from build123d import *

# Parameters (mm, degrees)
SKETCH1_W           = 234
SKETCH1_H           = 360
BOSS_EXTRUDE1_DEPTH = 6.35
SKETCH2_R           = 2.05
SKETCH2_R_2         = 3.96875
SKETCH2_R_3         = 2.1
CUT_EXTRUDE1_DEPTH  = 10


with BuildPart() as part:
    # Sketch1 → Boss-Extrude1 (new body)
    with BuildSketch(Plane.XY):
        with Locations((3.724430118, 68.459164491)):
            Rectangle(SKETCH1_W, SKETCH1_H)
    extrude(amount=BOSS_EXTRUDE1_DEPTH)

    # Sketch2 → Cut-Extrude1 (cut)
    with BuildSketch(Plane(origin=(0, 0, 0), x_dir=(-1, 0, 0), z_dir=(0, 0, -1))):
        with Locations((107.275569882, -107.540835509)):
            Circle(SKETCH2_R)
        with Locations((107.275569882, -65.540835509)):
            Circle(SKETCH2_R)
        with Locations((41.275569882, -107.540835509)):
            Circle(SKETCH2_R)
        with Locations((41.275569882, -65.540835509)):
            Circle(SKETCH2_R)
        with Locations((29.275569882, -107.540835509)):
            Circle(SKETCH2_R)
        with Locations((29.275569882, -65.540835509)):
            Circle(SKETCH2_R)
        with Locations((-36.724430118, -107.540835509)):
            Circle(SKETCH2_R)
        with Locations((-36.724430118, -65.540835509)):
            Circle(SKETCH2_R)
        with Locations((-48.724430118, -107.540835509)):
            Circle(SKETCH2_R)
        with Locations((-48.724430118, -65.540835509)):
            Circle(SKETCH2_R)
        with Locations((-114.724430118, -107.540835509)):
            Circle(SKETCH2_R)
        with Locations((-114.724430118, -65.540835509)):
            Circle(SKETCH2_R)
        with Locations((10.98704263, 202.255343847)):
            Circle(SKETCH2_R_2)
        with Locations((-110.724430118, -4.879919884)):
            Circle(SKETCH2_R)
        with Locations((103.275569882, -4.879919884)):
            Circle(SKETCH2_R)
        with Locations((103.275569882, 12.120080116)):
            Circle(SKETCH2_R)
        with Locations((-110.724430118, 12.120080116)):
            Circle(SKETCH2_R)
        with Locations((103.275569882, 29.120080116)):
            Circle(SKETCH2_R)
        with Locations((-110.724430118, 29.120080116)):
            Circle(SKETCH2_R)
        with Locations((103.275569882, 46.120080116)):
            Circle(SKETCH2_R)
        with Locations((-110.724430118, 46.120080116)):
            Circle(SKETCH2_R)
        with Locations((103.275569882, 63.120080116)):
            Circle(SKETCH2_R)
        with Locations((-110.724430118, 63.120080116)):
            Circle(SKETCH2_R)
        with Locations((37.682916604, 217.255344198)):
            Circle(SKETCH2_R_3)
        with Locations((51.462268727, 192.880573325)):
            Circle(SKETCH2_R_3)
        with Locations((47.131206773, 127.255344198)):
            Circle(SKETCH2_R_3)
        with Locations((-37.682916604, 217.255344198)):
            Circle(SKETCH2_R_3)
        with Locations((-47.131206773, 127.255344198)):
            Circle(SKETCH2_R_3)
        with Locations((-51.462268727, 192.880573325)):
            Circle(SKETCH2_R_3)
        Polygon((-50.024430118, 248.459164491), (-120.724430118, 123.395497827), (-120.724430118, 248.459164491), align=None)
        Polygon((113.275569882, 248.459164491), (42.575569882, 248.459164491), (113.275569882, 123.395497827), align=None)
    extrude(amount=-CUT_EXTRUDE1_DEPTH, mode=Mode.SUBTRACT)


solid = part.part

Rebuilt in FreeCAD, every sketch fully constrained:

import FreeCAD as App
import Part
import Sketcher

V = App.Vector
Q = App.Units.Quantity


def add_polygon(sketch, points):
    """Adds a closed chain of lines whose ends are joined by coincident constraints."""
    first, n = sketch.GeometryCount, len(points)
    for a, b in zip(points, points[1:] + points[:1]):
        sketch.addGeometry(Part.LineSegment(App.Vector(*a, 0), App.Vector(*b, 0)), False)
    for i in range(n):
        sketch.addConstraint(Sketcher.Constraint("Coincident", first + i, 2, first + (i + 1) % n, 1))

doc = App.newDocument("Part")
body = doc.addObject("PartDesign::Body", "Body")

sketch1 = body.newObject("Sketcher::SketchObject", "Sketch")
sketch1.AttachmentSupport = (doc.getObject("XY_Plane"), [""])
sketch1.MapMode = "FlatFace"
add_polygon(sketch1, [(-113.27557, 248.459164), (-113.27557, -111.540836), (120.72443, -111.540836), (120.72443, 248.459164)])
sketch1.addConstraint(Sketcher.Constraint("Vertical", 0))
sketch1.addConstraint(Sketcher.Constraint("Horizontal", 1))
sketch1.addConstraint(Sketcher.Constraint("Vertical", 2))
sketch1.addConstraint(Sketcher.Constraint("Horizontal", 3))
sketch1.addConstraint(Sketcher.Constraint("DistanceX", 1, 1, 1, 2, 234.0))
sketch1.addConstraint(Sketcher.Constraint("DistanceY", 0, 2, 0, 1, 360.0))
sketch1.addConstraint(Sketcher.Constraint("DistanceX", 0, 2, -1, 1, 113.27557))
sketch1.addConstraint(Sketcher.Constraint("DistanceY", 0, 2, -1, 1, 111.540836))
pad1 = body.newObject("PartDesign::Pad", "Pad")
pad1.Profile = sketch1
pad1.Length = 6.35

sketch2 = body.newObject("Sketcher::SketchObject", "Sketch001")
sketch2.AttachmentSupport = (doc.getObject("XY_Plane"), [""])
sketch2.MapMode = "FlatFace"
sketch2.addGeometry(Part.Circle(V(-107.27557, -107.540836, 0), V(0, 0, 1), 2.05), False)
sketch2.addGeometry(Part.Circle(V(-107.27557, -65.540836, 0), V(0, 0, 1), 2.05), False)
sketch2.addGeometry(Part.Circle(V(-41.27557, -107.540836, 0), V(0, 0, 1), 2.05), False)
sketch2.addGeometry(Part.Circle(V(-41.27557, -65.540836, 0), V(0, 0, 1), 2.05), False)
sketch2.addGeometry(Part.Circle(V(-29.27557, -107.540836, 0), V(0, 0, 1), 2.05), False)
sketch2.addGeometry(Part.Circle(V(-29.27557, -65.540836, 0), V(0, 0, 1), 2.05), False)
sketch2.addGeometry(Part.Circle(V(36.72443, -107.540836, 0), V(0, 0, 1), 2.05), False)
sketch2.addGeometry(Part.Circle(V(36.72443, -65.540836, 0), V(0, 0, 1), 2.05), False)
sketch2.addGeometry(Part.Circle(V(48.72443, -107.540836, 0), V(0, 0, 1), 2.05), False)
sketch2.addGeometry(Part.Circle(V(48.72443, -65.540836, 0), V(0, 0, 1), 2.05), False)
sketch2.addGeometry(Part.Circle(V(114.72443, -107.540836, 0), V(0, 0, 1), 2.05), False)
sketch2.addGeometry(Part.Circle(V(114.72443, -65.540836, 0), V(0, 0, 1), 2.05), False)
sketch2.addGeometry(Part.Circle(V(-10.987043, 202.255344, 0), V(0, 0, 1), 3.96875), False)
sketch2.addGeometry(Part.Circle(V(110.72443, -4.87992, 0), V(0, 0, 1), 2.05), False)
sketch2.addGeometry(Part.Circle(V(-103.27557, -4.87992, 0), V(0, 0, 1), 2.05), False)
sketch2.addGeometry(Part.Circle(V(-103.27557, 12.12008, 0), V(0, 0, 1), 2.05), False)
sketch2.addGeometry(Part.Circle(V(110.72443, 12.12008, 0), V(0, 0, 1), 2.05), False)
sketch2.addGeometry(Part.Circle(V(-103.27557, 29.12008, 0), V(0, 0, 1), 2.05), False)
sketch2.addGeometry(Part.Circle(V(110.72443, 29.12008, 0), V(0, 0, 1), 2.05), False)
sketch2.addGeometry(Part.Circle(V(-103.27557, 46.12008, 0), V(0, 0, 1), 2.05), False)
sketch2.addGeometry(Part.Circle(V(110.72443, 46.12008, 0), V(0, 0, 1), 2.05), False)
sketch2.addGeometry(Part.Circle(V(-103.27557, 63.12008, 0), V(0, 0, 1), 2.05), False)
sketch2.addGeometry(Part.Circle(V(110.72443, 63.12008, 0), V(0, 0, 1), 2.05), False)
sketch2.addGeometry(Part.Circle(V(-37.682917, 217.255344, 0), V(0, 0, 1), 2.1), False)
sketch2.addGeometry(Part.Circle(V(-51.462269, 192.880573, 0), V(0, 0, 1), 2.1), False)
sketch2.addGeometry(Part.Circle(V(-47.131207, 127.255344, 0), V(0, 0, 1), 2.1), False)
sketch2.addGeometry(Part.Circle(V(37.682917, 217.255344, 0), V(0, 0, 1), 2.1), False)
sketch2.addGeometry(Part.Circle(V(47.131207, 127.255344, 0), V(0, 0, 1), 2.1), False)
sketch2.addGeometry(Part.Circle(V(51.462269, 192.880573, 0), V(0, 0, 1), 2.1), False)
add_polygon(sketch2, [(120.72443, 123.395498), (50.02443, 248.459164), (120.72443, 248.459164)])
add_polygon(sketch2, [(-113.27557, 248.459164), (-42.57557, 248.459164), (-113.27557, 123.395498)])
sketch2.addConstraint(Sketcher.Constraint("Horizontal", 30))
sketch2.addConstraint(Sketcher.Constraint("Vertical", 31))
sketch2.addConstraint(Sketcher.Constraint("Horizontal", 32))
sketch2.addConstraint(Sketcher.Constraint("Vertical", 34))
sketch2.addConstraint(Sketcher.Constraint("Equal", 0, 1))
sketch2.addConstraint(Sketcher.Constraint("Equal", 1, 2))
sketch2.addConstraint(Sketcher.Constraint("Equal", 2, 3))
sketch2.addConstraint(Sketcher.Constraint("Equal", 3, 4))
sketch2.addConstraint(Sketcher.Constraint("Equal", 4, 5))
sketch2.addConstraint(Sketcher.Constraint("Equal", 5, 6))
sketch2.addConstraint(Sketcher.Constraint("Equal", 6, 7))
sketch2.addConstraint(Sketcher.Constraint("Equal", 7, 8))
sketch2.addConstraint(Sketcher.Constraint("Equal", 8, 9))
sketch2.addConstraint(Sketcher.Constraint("Equal", 9, 10))
sketch2.addConstraint(Sketcher.Constraint("Equal", 10, 11))
sketch2.addConstraint(Sketcher.Constraint("Equal", 11, 13))
sketch2.addConstraint(Sketcher.Constraint("Equal", 13, 14))
sketch2.addConstraint(Sketcher.Constraint("Equal", 14, 15))
sketch2.addConstraint(Sketcher.Constraint("Equal", 15, 16))
sketch2.addConstraint(Sketcher.Constraint("Equal", 16, 17))
sketch2.addConstraint(Sketcher.Constraint("Equal", 17, 18))
sketch2.addConstraint(Sketcher.Constraint("Equal", 18, 19))
sketch2.addConstraint(Sketcher.Constraint("Equal", 19, 20))
sketch2.addConstraint(Sketcher.Constraint("Equal", 20, 21))
sketch2.addConstraint(Sketcher.Constraint("Equal", 21, 22))
sketch2.addConstraint(Sketcher.Constraint("Equal", 23, 24))
sketch2.addConstraint(Sketcher.Constraint("Equal", 24, 25))
sketch2.addConstraint(Sketcher.Constraint("Equal", 25, 26))
sketch2.addConstraint(Sketcher.Constraint("Equal", 26, 27))
sketch2.addConstraint(Sketcher.Constraint("Equal", 27, 28))
sketch2.addConstraint(Sketcher.Constraint("Symmetric", 23, 3, 26, 3, -2))
sketch2.addConstraint(Sketcher.Constraint("Symmetric", 25, 3, 27, 3, -2))
sketch2.addConstraint(Sketcher.Constraint("Symmetric", 24, 3, 28, 3, -2))
sketch2.addConstraint(Sketcher.Constraint("Horizontal", 0, 3, 2, 3))
sketch2.addConstraint(Sketcher.Constraint("Horizontal", 1, 3, 3, 3))
sketch2.addConstraint(Sketcher.Constraint("Horizontal", 2, 3, 4, 3))
sketch2.addConstraint(Sketcher.Constraint("Horizontal", 3, 3, 5, 3))
sketch2.addConstraint(Sketcher.Constraint("Horizontal", 4, 3, 6, 3))
sketch2.addConstraint(Sketcher.Constraint("Horizontal", 5, 3, 7, 3))
sketch2.addConstraint(Sketcher.Constraint("Horizontal", 6, 3, 8, 3))
sketch2.addConstraint(Sketcher.Constraint("Horizontal", 7, 3, 9, 3))
sketch2.addConstraint(Sketcher.Constraint("Horizontal", 8, 3, 10, 3))
sketch2.addConstraint(Sketcher.Constraint("Horizontal", 9, 3, 11, 3))
sketch2.addConstraint(Sketcher.Constraint("Horizontal", 13, 3, 14, 3))
sketch2.addConstraint(Sketcher.Constraint("Horizontal", 15, 3, 16, 3))
sketch2.addConstraint(Sketcher.Constraint("Horizontal", 17, 3, 18, 3))
sketch2.addConstraint(Sketcher.Constraint("Horizontal", 19, 3, 20, 3))
sketch2.addConstraint(Sketcher.Constraint("Horizontal", 21, 3, 22, 3))
sketch2.addConstraint(Sketcher.Constraint("Horizontal", 30, 2, 32, 2))
sketch2.addConstraint(Sketcher.Constraint("Horizontal", 31, 2, 33, 2))
sketch2.addConstraint(Sketcher.Constraint("Vertical", 0, 3, 1, 3))
sketch2.addConstraint(Sketcher.Constraint("Vertical", 2, 3, 3, 3))
sketch2.addConstraint(Sketcher.Constraint("Vertical", 4, 3, 5, 3))
sketch2.addConstraint(Sketcher.Constraint("Vertical", 6, 3, 7, 3))
sketch2.addConstraint(Sketcher.Constraint("Vertical", 8, 3, 9, 3))
sketch2.addConstraint(Sketcher.Constraint("Vertical", 10, 3, 11, 3))
sketch2.addConstraint(Sketcher.Constraint("Vertical", 14, 3, 15, 3))
sketch2.addConstraint(Sketcher.Constraint("Vertical", 13, 3, 16, 3))
sketch2.addConstraint(Sketcher.Constraint("Vertical", 15, 3, 17, 3))
sketch2.addConstraint(Sketcher.Constraint("Vertical", 16, 3, 18, 3))
sketch2.addConstraint(Sketcher.Constraint("Vertical", 17, 3, 19, 3))
sketch2.addConstraint(Sketcher.Constraint("Vertical", 18, 3, 20, 3))
sketch2.addConstraint(Sketcher.Constraint("Vertical", 19, 3, 21, 3))
sketch2.addConstraint(Sketcher.Constraint("Vertical", 20, 3, 22, 3))
sketch2.addConstraint(Sketcher.Constraint("Equal", 30, 32))
sketch2.addConstraint(Sketcher.Constraint("Diameter", 0, 4.1))
sketch2.addConstraint(Sketcher.Constraint("Diameter", 23, 4.2))
sketch2.addConstraint(Sketcher.Constraint("DistanceX", 30, 1, 30, 2, 70.7))
sketch2.addConstraint(Sketcher.Constraint("DistanceY", 0, 3, 1, 3, 42.0))
sketch2.addConstraint(Sketcher.Constraint("DistanceX", 0, 3, 2, 3, 66.0))
sketch2.addConstraint(Sketcher.Constraint("DistanceX", 2, 3, 4, 3, 12.0))
sketch2.addConstraint(Sketcher.Constraint("DistanceX", 4, 3, 6, 3, 66.0))
sketch2.addConstraint(Sketcher.Constraint("DistanceX", 6, 3, 8, 3, 12.0))
sketch2.addConstraint(Sketcher.Constraint("DistanceX", 8, 3, 10, 3, 66.0))
sketch2.addConstraint(Sketcher.Constraint("DistanceX", 13, 3, 11, 3, 4.0))
sketch2.addConstraint(Sketcher.Constraint("DistanceX", 1, 3, 14, 3, 4.0))
sketch2.addConstraint(Sketcher.Constraint("DistanceY", 14, 3, 15, 3, 17.0))
sketch2.addConstraint(Sketcher.Constraint("DistanceY", 15, 3, 17, 3, 17.0))
sketch2.addConstraint(Sketcher.Constraint("DistanceY", 17, 3, 19, 3, 17.0))
sketch2.addConstraint(Sketcher.Constraint("DistanceY", 19, 3, 21, 3, 17.0))
sketch2.addConstraint(Sketcher.Constraint("DistanceY", 12, 3, 23, 3, 15.0))
sketch2.addConstraint(Sketcher.Constraint("DistanceY", 25, 3, 12, 3, 75.0))
sketch2.addConstraint(Sketcher.Constraint("DistanceX", 22, 3, 31, 2, 10.0))
sketch2.addConstraint(Sketcher.Constraint("DistanceX", 33, 2, 21, 3, 10.0))
sketch2.addConstraint(Sketcher.Constraint("Diameter", 12, 7.9375))
sketch2.addConstraint(Sketcher.Constraint("Angle", 29, Q("119.48 deg")))
sketch2.addConstraint(Sketcher.Constraint("DistanceX", 21, 3, 24, 3, 51.813301))
sketch2.addConstraint(Sketcher.Constraint("DistanceX", 0, 3, -1, 1, 107.27557))
sketch2.addConstraint(Sketcher.Constraint("DistanceY", 13, 3, -1, 1, 4.87992))
sketch2.addConstraint(Sketcher.Constraint("DistanceY", 5, 3, 12, 3, 267.796179))
sketch2.addConstraint(Sketcher.Constraint("DistanceY", 24, 3, 23, 3, 24.374771))
sketch2.addConstraint(Sketcher.Constraint("DistanceX", 24, 3, 25, 3, 4.331062))
sketch2.addConstraint(Sketcher.Constraint("DistanceX", 25, 3, 23, 3, 9.44829))
sketch2.addConstraint(Sketcher.Constraint("DistanceX", 12, 3, 26, 3, 48.669959))
sketch2.addConstraint(Sketcher.Constraint("DistanceY", 26, 3, 29, 2, 31.20382))
sketch2.addConstraint(Sketcher.Constraint("DistanceY", 0, 3, -1, 1, 107.540836))
pocket1 = body.newObject("PartDesign::Pocket", "Pocket")
pocket1.Profile = sketch2
pocket1.Length = 10
pocket1.Reversed = True

doc.recompute()
